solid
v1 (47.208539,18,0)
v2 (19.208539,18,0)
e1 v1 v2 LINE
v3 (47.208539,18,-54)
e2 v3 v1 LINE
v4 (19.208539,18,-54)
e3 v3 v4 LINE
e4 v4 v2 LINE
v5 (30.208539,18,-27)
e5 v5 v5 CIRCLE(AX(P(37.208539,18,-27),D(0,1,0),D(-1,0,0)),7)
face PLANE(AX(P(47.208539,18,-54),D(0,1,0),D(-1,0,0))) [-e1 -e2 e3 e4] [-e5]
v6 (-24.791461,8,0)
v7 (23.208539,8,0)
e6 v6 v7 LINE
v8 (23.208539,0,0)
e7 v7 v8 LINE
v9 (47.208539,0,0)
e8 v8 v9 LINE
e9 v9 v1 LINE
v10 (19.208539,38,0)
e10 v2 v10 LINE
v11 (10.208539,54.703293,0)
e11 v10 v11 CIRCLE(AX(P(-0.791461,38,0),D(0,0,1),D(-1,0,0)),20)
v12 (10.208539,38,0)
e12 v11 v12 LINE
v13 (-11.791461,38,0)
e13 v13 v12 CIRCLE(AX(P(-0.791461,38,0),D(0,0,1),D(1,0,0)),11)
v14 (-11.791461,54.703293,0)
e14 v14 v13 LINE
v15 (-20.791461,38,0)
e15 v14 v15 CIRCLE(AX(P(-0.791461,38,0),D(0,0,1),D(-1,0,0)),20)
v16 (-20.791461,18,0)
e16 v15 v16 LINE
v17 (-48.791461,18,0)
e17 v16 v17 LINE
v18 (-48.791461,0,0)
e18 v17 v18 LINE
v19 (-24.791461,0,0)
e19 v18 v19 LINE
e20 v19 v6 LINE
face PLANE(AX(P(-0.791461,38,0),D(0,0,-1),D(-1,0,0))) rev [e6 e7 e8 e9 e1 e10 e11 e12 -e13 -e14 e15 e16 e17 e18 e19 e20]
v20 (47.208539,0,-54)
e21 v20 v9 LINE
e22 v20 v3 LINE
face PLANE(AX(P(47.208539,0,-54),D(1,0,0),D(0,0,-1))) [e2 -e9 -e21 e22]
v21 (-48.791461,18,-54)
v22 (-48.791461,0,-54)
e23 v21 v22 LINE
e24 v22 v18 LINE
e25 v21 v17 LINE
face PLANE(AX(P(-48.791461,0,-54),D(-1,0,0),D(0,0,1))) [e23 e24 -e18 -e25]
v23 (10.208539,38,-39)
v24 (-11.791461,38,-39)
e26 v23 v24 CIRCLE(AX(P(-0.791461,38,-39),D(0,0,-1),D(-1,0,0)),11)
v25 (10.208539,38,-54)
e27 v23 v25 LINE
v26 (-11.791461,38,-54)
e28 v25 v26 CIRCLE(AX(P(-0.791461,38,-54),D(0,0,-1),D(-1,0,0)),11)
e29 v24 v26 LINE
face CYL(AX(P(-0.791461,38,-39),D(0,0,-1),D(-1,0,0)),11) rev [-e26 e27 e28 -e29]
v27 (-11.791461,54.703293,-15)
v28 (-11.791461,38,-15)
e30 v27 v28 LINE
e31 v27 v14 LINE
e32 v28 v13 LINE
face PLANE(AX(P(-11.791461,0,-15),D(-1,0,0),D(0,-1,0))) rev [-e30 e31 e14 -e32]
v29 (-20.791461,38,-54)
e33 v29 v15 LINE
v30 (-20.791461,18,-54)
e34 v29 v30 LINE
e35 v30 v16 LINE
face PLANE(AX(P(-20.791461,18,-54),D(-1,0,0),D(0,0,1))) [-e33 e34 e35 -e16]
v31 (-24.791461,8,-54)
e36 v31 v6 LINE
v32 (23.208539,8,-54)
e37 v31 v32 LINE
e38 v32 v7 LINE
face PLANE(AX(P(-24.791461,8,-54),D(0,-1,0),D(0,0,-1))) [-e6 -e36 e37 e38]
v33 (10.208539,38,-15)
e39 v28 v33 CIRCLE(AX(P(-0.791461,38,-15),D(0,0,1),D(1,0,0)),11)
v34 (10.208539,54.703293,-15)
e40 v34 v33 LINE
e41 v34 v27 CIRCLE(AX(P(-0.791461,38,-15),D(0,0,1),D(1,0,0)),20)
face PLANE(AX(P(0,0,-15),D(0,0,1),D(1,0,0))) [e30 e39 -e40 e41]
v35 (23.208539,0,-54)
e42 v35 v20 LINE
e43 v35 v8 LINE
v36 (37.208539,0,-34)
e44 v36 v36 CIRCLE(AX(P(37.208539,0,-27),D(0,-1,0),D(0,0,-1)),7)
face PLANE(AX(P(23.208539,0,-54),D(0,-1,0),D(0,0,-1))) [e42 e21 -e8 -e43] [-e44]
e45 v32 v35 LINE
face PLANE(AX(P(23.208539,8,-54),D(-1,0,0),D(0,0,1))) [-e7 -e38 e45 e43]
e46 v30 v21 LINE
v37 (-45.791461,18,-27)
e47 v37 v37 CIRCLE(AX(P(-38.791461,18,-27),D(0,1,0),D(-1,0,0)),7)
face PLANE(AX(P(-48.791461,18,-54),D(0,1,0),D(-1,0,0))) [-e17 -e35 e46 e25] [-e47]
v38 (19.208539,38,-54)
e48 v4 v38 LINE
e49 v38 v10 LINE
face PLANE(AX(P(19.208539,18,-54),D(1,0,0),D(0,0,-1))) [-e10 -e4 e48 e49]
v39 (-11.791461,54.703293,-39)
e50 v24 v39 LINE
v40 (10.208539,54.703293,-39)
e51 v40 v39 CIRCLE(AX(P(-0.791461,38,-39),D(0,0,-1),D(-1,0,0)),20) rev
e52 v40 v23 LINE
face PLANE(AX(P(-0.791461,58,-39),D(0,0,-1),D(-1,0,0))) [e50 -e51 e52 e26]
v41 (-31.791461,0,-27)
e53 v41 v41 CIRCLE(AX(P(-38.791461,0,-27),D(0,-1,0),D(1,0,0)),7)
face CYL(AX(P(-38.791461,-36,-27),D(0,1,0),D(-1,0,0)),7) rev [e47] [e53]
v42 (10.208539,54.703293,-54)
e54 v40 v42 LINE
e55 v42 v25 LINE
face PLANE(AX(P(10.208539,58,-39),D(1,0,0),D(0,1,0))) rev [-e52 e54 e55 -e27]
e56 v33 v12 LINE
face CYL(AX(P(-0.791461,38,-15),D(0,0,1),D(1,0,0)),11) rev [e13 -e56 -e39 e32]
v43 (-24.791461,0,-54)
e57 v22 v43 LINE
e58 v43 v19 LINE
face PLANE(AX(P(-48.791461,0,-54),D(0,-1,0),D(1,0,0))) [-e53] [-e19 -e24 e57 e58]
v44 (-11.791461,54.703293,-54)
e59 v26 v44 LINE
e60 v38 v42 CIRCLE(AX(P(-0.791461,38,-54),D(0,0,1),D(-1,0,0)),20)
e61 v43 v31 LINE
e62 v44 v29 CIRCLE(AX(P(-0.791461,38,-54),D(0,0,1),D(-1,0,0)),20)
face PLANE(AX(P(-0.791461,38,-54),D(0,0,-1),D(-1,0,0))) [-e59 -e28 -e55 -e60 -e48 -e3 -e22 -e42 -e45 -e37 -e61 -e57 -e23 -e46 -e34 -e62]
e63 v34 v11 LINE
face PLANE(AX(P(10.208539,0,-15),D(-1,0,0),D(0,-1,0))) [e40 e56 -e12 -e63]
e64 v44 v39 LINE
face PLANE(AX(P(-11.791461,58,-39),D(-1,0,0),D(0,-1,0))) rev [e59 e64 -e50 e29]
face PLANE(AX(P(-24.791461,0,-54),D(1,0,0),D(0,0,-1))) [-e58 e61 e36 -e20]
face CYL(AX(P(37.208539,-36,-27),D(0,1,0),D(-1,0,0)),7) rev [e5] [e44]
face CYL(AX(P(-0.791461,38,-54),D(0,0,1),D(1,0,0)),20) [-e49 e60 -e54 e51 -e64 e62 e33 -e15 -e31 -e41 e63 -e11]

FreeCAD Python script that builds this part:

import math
import FreeCAD as App
import Part
import Sketcher
Q = App.Units.Quantity

doc = App.newDocument("Part")
body = doc.addObject("PartDesign::Body", "Body")

# Sketch on XY plane
sketch1 = body.newObject("Sketcher::SketchObject", "Sketch")
sketch1.AttachmentSupport = (doc.getObject("XY_Plane"), [""])
sketch1.MapMode = "FlatFace"
sketch1.addGeometry(Part.LineSegment(App.Vector(-49, 0, 0), App.Vector(-25, 0, 0)), False)
sketch1.addGeometry(Part.LineSegment(App.Vector(-25, 0, 0), App.Vector(-25, 8, 0)), False)
sketch1.addGeometry(Part.LineSegment(App.Vector(-25, 8, 0), App.Vector(23, 8, 0)), False)
sketch1.addGeometry(Part.LineSegment(App.Vector(23, 8, 0), App.Vector(23, 0, 0)), False)
sketch1.addGeometry(Part.LineSegment(App.Vector(23, 0, 0), App.Vector(47, 0, 0)), False)
sketch1.addGeometry(Part.LineSegment(App.Vector(47, 0, 0), App.Vector(47, 18, 0)), False)
sketch1.addGeometry(Part.LineSegment(App.Vector(47, 18, 0), App.Vector(19, 18, 0)), False)
sketch1.addGeometry(Part.LineSegment(App.Vector(19, 18, 0), App.Vector(19, 38, 0)), False)
sketch1.addGeometry(Part.ArcOfCircle(Part.Circle(App.Vector(-1, 38, 0), App.Vector(0, 0, 1), 20), math.radians(0), math.radians(180)), False)
sketch1.addGeometry(Part.LineSegment(App.Vector(-21, 38, 0), App.Vector(-21, 18, 0)), False)
sketch1.addGeometry(Part.LineSegment(App.Vector(-21, 18, 0), App.Vector(-49, 18, 0)), False)
sketch1.addGeometry(Part.LineSegment(App.Vector(-49, 18, 0), App.Vector(-49, 0, 0)), False)
sketch1.addConstraint(Sketcher.Constraint("Coincident", 0, 2, 1, 1))
sketch1.addConstraint(Sketcher.Constraint("Coincident", 1, 2, 2, 1))
sketch1.addConstraint(Sketcher.Constraint("Coincident", 2, 2, 3, 1))
sketch1.addConstraint(Sketcher.Constraint("Coincident", 3, 2, 4, 1))
sketch1.addConstraint(Sketcher.Constraint("Coincident", 4, 2, 5, 1))
sketch1.addConstraint(Sketcher.Constraint("Coincident", 5, 2, 6, 1))
sketch1.addConstraint(Sketcher.Constraint("Coincident", 6, 2, 7, 1))
sketch1.addConstraint(Sketcher.Constraint("Tangent", 7, 2, 8, 1))
sketch1.addConstraint(Sketcher.Constraint("Tangent", 8, 2, 9, 1))
sketch1.addConstraint(Sketcher.Constraint("Coincident", 9, 2, 10, 1))
sketch1.addConstraint(Sketcher.Constraint("Coincident", 10, 2, 11, 1))
sketch1.addConstraint(Sketcher.Constraint("Coincident", 11, 2, 0, 1))
sketch1.addConstraint(Sketcher.Constraint("Horizontal", 0))
sketch1.addConstraint(Sketcher.Constraint("Vertical", 1))
sketch1.addConstraint(Sketcher.Constraint("Horizontal", 2))
sketch1.addConstraint(Sketcher.Constraint("Vertical", 3))
sketch1.addConstraint(Sketcher.Constraint("Horizontal", 4))
sketch1.addConstraint(Sketcher.Constraint("Vertical", 5))
sketch1.addConstraint(Sketcher.Constraint("Horizontal", 6))
sketch1.addConstraint(Sketcher.Constraint("Vertical", 7))
sketch1.addConstraint(Sketcher.Constraint("Vertical", 9))
sketch1.addConstraint(Sketcher.Constraint("Horizontal", 10))
sketch1.addConstraint(Sketcher.Constraint("Vertical", 11))
sketch1.addConstraint(Sketcher.Constraint("PointOnObject", 0, 2, -1))
sketch1.addConstraint(Sketcher.Constraint("PointOnObject", 3, 2, -1))
sketch1.addConstraint(Sketcher.Constraint("Horizontal", 6, 2, 9, 2))
sketch1.addConstraint(Sketcher.Constraint("Equal", 0, 4))
sketch1.addConstraint(Sketcher.Constraint("Equal", 6, 10))
sketch1.addConstraint(Sketcher.Constraint("Radius", 8, Q("20 mm")))
sketch1.addConstraint(Sketcher.Constraint("DistanceX", 0, 1, 0, 2, Q("24 mm")))
sketch1.addConstraint(Sketcher.Constraint("DistanceX", 2, 1, 2, 2, Q("48 mm")))
sketch1.addConstraint(Sketcher.Constraint("DistanceY", 1, 1, 1, 2, Q("8 mm")))
sketch1.addConstraint(Sketcher.Constraint("DistanceY", 5, 1, 5, 2, Q("18 mm")))
sketch1.addConstraint(Sketcher.Constraint("DistanceY", 7, 1, 7, 2, Q("20 mm")))
sketch1.addConstraint(Sketcher.Constraint("DistanceX", 8, 3, -1, 1, Q("0.791461 mm")))
pad1 = body.newObject("PartDesign::Pad", "Pad")
pad1.Profile = sketch1
pad1.Length = 54
pad1.Reversed = True

# Sketch on XZ plane
sketch2 = body.newObject("Sketcher::SketchObject", "Sketch001")
sketch2.AttachmentSupport = (doc.getObject("XZ_Plane"), [""])
sketch2.MapMode = "FlatFace"
sketch2.AttachmentOffset = App.Placement(App.Vector(0, 0, -18), App.Rotation())
sketch2.addGeometry(Part.Circle(App.Vector(37, -27, 0), App.Vector(0, 0, 1), 7), False)
sketch2.addGeometry(Part.Circle(App.Vector(-39, -27, 0), App.Vector(0, 0, 1), 7), False)
sketch2.addConstraint(Sketcher.Constraint("Equal", 0, 1))
sketch2.addConstraint(Sketcher.Constraint("Horizontal", 0, 3, 1, 3))
sketch2.addConstraint(Sketcher.Constraint("Diameter", 0, Q("14 mm")))
sketch2.addConstraint(Sketcher.Constraint("DistanceY", 0, 3, -1, 1, Q("27 mm")))
sketch2.addConstraint(Sketcher.Constraint("DistanceX", 1, 3, 0, 3, Q("76 mm")))
sketch2.addConstraint(Sketcher.Constraint("DistanceX", -1, 1, 0, 3, Q("37.208539 mm")))
pocket1 = body.newObject("PartDesign::Pocket", "Pocket")
pocket1.Profile = sketch2
pocket1.Length = 54
pocket1.Reversed = True

# Sketch on XY plane
sketch3 = body.newObject("Sketcher::SketchObject", "Sketch002")
sketch3.AttachmentSupport = (doc.getObject("XY_Plane"), [""])
sketch3.MapMode = "FlatFace"
sketch3.addGeometry(Part.LineSegment(App.Vector(10, 38, 0), App.Vector(10, 58, 0)), False)
sketch3.addGeometry(Part.ArcOfCircle(Part.Circle(App.Vector(-1, 58, 0), App.Vector(0, 0, 1), 11), math.radians(0), math.radians(180)), False)
sketch3.addGeometry(Part.LineSegment(App.Vector(-12, 58, 0), App.Vector(-12, 38, 0)), False)
sketch3.addGeometry(Part.ArcOfCircle(Part.Circle(App.Vector(-1, 38, 0), App.Vector(0, 0, 1), 11), math.radians(180), math.radians(360)), False)
sketch3.addConstraint(Sketcher.Constraint("Tangent", 0, 2, 1, 1))
sketch3.addConstraint(Sketcher.Constraint("Tangent", 1, 2, 2, 1))
sketch3.addConstraint(Sketcher.Constraint("Tangent", 2, 2, 3, 1))
sketch3.addConstraint(Sketcher.Constraint("Tangent", 3, 2, 0, 1))
sketch3.addConstraint(Sketcher.Constraint("Vertical", 0))
sketch3.addConstraint(Sketcher.Constraint("Vertical", 2))
sketch3.addConstraint(Sketcher.Constraint("Radius", 1, Q("11 mm")))
sketch3.addConstraint(Sketcher.Constraint("DistanceY", 0, 1, 0, 2, Q("20 mm")))
sketch3.addConstraint(Sketcher.Constraint("DistanceY", -1, 1, 1, 3, Q("58 mm")))
sketch3.addConstraint(Sketcher.Constraint("DistanceX", 1, 3, -1, 1, Q("0.791461 mm")))
pocket2 = body.newObject("PartDesign::Pocket", "Pocket001")
pocket2.Profile = sketch3
pocket2.Length = 15

# Sketch on XY plane
sketch4 = body.newObject("Sketcher::SketchObject", "Sketch003")
sketch4.AttachmentSupport = (doc.getObject("XY_Plane"), [""])
sketch4.MapMode = "FlatFace"
sketch4.AttachmentOffset = App.Placement(App.Vector(0, 0, -39), App.Rotation())
sketch4.addGeometry(Part.LineSegment(App.Vector(-12, 38, 0), App.Vector(-12, 58, 0)), False)
sketch4.addGeometry(Part.ArcOfCircle(Part.Circle(App.Vector(-1, 58, 0), App.Vector(0, 0, 1), 11), math.radians(0), math.radians(180)), False)
sketch4.addGeometry(Part.LineSegment(App.Vector(10, 58, 0), App.Vector(10, 38, 0)), False)
sketch4.addGeometry(Part.ArcOfCircle(Part.Circle(App.Vector(-1, 38, 0), App.Vector(0, 0, 1), 11), math.radians(180), math.radians(360)), False)
sketch4.addConstraint(Sketcher.Constraint("Tangent", 0, 2, 1, 2))
sketch4.addConstraint(Sketcher.Constraint("Tangent", 1, 1, 2, 1))
sketch4.addConstraint(Sketcher.Constraint("Tangent", 2, 2, 3, 2))
sketch4.addConstraint(Sketcher.Constraint("Tangent", 3, 1, 0, 1))
sketch4.addConstraint(Sketcher.Constraint("Vertical", 0))
sketch4.addConstraint(Sketcher.Constraint("Vertical", 2))
sketch4.addConstraint(Sketcher.Constraint("Radius", 1, Q("11 mm")))
sketch4.addConstraint(Sketcher.Constraint("DistanceY", 0, 1, 0, 2, Q("20 mm")))
sketch4.addConstraint(Sketcher.Constraint("DistanceY", -1, 1, 1, 3, Q("58 mm")))
sketch4.addConstraint(Sketcher.Constraint("DistanceX", 1, 3, -1, 1, Q("0.791461 mm")))
pocket3 = body.newObject("PartDesign::Pocket", "Pocket002")
pocket3.Profile = sketch4
pocket3.Length = 15

doc.recompute()
